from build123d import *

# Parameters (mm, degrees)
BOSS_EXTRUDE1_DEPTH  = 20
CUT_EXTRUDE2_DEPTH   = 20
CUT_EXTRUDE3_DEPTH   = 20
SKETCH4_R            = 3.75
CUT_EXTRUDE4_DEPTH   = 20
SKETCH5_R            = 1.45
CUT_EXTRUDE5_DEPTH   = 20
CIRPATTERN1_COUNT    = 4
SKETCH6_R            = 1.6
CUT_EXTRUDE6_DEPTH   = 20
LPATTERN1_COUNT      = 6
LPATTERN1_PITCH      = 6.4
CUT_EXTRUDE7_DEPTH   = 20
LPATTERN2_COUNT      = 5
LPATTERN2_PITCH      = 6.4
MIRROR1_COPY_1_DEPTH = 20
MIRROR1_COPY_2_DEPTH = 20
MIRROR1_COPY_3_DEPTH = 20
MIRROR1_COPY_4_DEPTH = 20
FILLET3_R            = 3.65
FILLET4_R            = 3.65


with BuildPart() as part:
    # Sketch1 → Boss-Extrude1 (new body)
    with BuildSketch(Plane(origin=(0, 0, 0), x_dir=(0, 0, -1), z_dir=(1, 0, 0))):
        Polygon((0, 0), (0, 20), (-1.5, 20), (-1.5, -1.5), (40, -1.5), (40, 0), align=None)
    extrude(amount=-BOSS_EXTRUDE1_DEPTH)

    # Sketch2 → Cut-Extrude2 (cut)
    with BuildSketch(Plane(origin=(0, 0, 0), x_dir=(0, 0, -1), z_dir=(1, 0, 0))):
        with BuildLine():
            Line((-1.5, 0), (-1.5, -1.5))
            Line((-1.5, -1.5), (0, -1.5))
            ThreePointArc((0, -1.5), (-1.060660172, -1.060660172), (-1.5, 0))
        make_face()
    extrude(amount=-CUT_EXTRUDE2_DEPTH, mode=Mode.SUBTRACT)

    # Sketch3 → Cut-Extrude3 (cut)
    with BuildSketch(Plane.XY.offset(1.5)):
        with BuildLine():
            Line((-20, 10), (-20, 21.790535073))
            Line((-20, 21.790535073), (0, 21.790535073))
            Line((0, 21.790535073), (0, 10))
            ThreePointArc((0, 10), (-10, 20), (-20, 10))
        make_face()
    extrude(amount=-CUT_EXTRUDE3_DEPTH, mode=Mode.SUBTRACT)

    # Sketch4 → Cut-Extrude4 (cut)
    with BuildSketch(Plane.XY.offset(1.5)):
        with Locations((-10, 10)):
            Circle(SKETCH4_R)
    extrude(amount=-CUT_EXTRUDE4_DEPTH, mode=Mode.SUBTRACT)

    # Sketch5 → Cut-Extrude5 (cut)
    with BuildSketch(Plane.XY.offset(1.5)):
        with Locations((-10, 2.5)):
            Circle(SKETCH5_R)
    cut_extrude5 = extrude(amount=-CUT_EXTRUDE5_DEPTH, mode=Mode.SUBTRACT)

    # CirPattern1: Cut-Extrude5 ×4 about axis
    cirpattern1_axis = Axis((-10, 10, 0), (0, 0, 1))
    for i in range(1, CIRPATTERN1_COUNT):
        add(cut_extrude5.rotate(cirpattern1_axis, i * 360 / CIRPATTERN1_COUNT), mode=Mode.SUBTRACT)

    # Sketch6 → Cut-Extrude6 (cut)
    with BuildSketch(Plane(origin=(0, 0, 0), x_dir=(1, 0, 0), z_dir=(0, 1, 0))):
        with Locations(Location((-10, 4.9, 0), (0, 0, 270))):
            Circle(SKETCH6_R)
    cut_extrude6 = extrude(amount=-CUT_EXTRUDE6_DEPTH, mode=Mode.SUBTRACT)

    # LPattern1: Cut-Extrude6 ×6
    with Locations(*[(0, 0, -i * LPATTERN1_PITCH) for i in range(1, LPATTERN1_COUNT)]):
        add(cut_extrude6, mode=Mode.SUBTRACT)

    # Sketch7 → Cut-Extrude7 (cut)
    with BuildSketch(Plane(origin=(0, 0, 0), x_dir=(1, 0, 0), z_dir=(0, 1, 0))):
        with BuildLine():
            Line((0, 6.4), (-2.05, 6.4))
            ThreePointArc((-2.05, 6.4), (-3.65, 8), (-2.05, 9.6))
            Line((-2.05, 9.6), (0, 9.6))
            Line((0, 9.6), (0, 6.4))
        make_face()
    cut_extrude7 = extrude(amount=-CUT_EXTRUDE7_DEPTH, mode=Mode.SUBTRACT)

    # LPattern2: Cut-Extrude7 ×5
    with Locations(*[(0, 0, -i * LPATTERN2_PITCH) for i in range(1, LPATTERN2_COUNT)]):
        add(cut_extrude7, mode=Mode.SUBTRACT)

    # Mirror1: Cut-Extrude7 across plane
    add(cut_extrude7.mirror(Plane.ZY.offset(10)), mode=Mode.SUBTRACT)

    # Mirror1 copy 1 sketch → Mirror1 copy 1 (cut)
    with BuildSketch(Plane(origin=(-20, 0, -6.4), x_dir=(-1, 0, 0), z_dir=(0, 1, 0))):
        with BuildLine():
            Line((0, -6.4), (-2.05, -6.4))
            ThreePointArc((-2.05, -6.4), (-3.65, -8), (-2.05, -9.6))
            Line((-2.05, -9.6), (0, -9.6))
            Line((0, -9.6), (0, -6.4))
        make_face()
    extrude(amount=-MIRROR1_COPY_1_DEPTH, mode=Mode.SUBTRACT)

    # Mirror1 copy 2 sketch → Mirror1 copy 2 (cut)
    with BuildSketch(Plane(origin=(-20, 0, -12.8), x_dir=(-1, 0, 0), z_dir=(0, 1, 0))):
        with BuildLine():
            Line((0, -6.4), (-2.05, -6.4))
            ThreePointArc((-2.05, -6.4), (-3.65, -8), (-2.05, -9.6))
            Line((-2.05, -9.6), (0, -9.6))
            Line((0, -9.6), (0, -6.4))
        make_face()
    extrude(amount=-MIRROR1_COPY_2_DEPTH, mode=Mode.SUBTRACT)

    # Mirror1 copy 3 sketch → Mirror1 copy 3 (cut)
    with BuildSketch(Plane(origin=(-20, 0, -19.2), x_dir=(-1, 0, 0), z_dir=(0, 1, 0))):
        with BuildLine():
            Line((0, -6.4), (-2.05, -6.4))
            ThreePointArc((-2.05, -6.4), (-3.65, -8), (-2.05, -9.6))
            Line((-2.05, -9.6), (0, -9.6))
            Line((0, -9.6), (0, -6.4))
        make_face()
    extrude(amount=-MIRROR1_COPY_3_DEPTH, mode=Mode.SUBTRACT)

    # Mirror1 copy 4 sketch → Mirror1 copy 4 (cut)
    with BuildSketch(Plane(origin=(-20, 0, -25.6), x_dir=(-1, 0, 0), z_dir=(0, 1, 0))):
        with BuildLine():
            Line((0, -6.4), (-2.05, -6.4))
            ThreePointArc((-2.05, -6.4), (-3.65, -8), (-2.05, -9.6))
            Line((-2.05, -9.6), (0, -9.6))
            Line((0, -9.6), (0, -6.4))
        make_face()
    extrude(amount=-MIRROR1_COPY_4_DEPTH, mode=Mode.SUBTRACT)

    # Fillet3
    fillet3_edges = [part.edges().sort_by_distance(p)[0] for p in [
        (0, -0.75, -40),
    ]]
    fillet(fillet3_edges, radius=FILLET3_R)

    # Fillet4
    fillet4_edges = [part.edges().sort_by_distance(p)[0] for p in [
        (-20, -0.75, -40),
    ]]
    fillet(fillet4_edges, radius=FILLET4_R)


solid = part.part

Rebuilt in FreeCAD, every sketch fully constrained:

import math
import FreeCAD as App
import Part
import Sketcher
from FreeCAD import Vector


def edges_at(feature, points):
    """Names of the edges that pass closest to the given points."""
    edges = feature.Shape.Edges
    near = lambda p: min(range(len(edges)), key=lambda i: edges[i].distToShape(Part.Vertex(*p))[0])
    return sorted({f"Edge{near(p) + 1}" for p in points})


def add_polygon(sketch, points):
    """Adds a closed chain of lines whose ends are joined by coincident constraints."""
    first, n = sketch.GeometryCount, len(points)
    for a, b in zip(points, points[1:] + points[:1]):
        sketch.addGeometry(Part.LineSegment(App.Vector(*a, 0), App.Vector(*b, 0)), False)
    for i in range(n):
        sketch.addConstraint(Sketcher.Constraint("Coincident", first + i, 2, first + (i + 1) % n, 1))

doc = App.newDocument("Part")
body = doc.addObject("PartDesign::Body", "Body")

sketch1 = body.newObject("Sketcher::SketchObject", "Sketch")
sketch1.AttachmentSupport = (doc.getObject("YZ_Plane"), [""])
sketch1.MapMode = "FlatFace"
add_polygon(sketch1, [(0, 0), (20, 0), (20, 1.5), (-1.5, 1.5), (-1.5, -40), (0, -40)])
sketch1.addConstraint([
    Sketcher.Constraint("Horizontal", 0),
    Sketcher.Constraint("Vertical", 1),
    Sketcher.Constraint("Horizontal", 2),
    Sketcher.Constraint("Vertical", 3),
    Sketcher.Constraint("Horizontal", 4),
    Sketcher.Constraint("Vertical", 5),
    Sketcher.Constraint("Coincident", 5, 2, -1, 1),
    Sketcher.Constraint("Equal", 4, 1),
    Sketcher.Constraint("DistanceX", 0, 1, 0, 2, 20.0),
    Sketcher.Constraint("DistanceY", 5, 1, 5, 2, 40.0),
    Sketcher.Constraint("DistanceX", 2, 2, 2, 1, 21.5),
])
pad1 = body.newObject("PartDesign::Pad", "Pad")
pad1.Profile = sketch1
pad1.Length = 20
pad1.Reversed = True

sketch2 = body.newObject("Sketcher::SketchObject", "Sketch001")
sketch2.AttachmentSupport = (doc.getObject("YZ_Plane"), [""])
sketch2.MapMode = "FlatFace"
sketch2.addGeometry([
    Part.LineSegment(Vector(0, 1.5, 0), Vector(-1.5, 1.5, 0)),
    Part.LineSegment(Vector(-1.5, 1.5, 0), Vector(-1.5, 0, 0)),
    Part.ArcOfCircle(Part.Circle(Vector(0, 0, 0), Vector(0, 0, 1), 1.5), math.radians(90), math.radians(180)),
], False)
sketch2.addConstraint([
    Sketcher.Constraint("Coincident", 0, 2, 1, 1),
    Sketcher.Constraint("Tangent", 1, 2, 2, 2),
    Sketcher.Constraint("Tangent", 2, 1, 0, 1),
    Sketcher.Constraint("Horizontal", 0),
    Sketcher.Constraint("Vertical", 1),
    Sketcher.Constraint("Coincident", 2, 3, -1, 1),
    Sketcher.Constraint("Radius", 2, 1.5),
])
pocket1 = body.newObject("PartDesign::Pocket", "Pocket")
pocket1.Profile = sketch2
pocket1.Length = 20

sketch3 = body.newObject("Sketcher::SketchObject", "Sketch002")
sketch3.AttachmentSupport = (doc.getObject("XY_Plane"), [""])
sketch3.MapMode = "FlatFace"
sketch3.AttachmentOffset = App.Placement(Vector(0, 0, 1.5), App.Rotation())
sketch3.addGeometry([
    Part.LineSegment(Vector(-20, 22, 0), Vector(-20, 10, 0)),
    Part.ArcOfCircle(Part.Circle(Vector(-10, 10, 0), Vector(0, 0, 1), 10), math.radians(0), math.radians(180)),
    Part.LineSegment(Vector(0, 10, 0), Vector(0, 22, 0)),
    Part.LineSegment(Vector(0, 22, 0), Vector(-20, 22, 0)),
], False)
sketch3.addConstraint([
    Sketcher.Constraint("Tangent", 0, 2, 1, 2),
    Sketcher.Constraint("Tangent", 1, 1, 2, 1),
    Sketcher.Constraint("Coincident", 2, 2, 3, 1),
    Sketcher.Constraint("Coincident", 3, 2, 0, 1),
    Sketcher.Constraint("Vertical", 0),
    Sketcher.Constraint("Vertical", 2),
    Sketcher.Constraint("Horizontal", 3),
    Sketcher.Constraint("PointOnObject", 1, 1, -2),
    Sketcher.Constraint("Radius", 1, 10.0),
    Sketcher.Constraint("DistanceY", -1, 1, 1, 3, 10.0),
    Sketcher.Constraint("DistanceY", 0, 2, 0, 1, 11.790535),
])
pocket2 = body.newObject("PartDesign::Pocket", "Pocket001")
pocket2.Profile = sketch3
pocket2.Length = 20

sketch4 = body.newObject("Sketcher::SketchObject", "Sketch003")
sketch4.AttachmentSupport = (doc.getObject("XY_Plane"), [""])
sketch4.MapMode = "FlatFace"
sketch4.AttachmentOffset = App.Placement(Vector(0, 0, 1.5), App.Rotation())
sketch4.addGeometry(Part.Circle(Vector(-10, 10, 0), Vector(0, 0, 1), 3.8), False)
sketch4.addConstraint([
    Sketcher.Constraint("Diameter", 0, 7.5),
    Sketcher.Constraint("DistanceX", 0, 3, -1, 1, 10.0),
    Sketcher.Constraint("DistanceY", -1, 1, 0, 3, 10.0),
])
pocket3 = body.newObject("PartDesign::Pocket", "Pocket002")
pocket3.Profile = sketch4
pocket3.Length = 20

sketch5 = body.newObject("Sketcher::SketchObject", "Sketch004")
sketch5.AttachmentSupport = (doc.getObject("XY_Plane"), [""])
sketch5.MapMode = "FlatFace"
sketch5.AttachmentOffset = App.Placement(Vector(0, 0, 1.5), App.Rotation())
sketch5.addGeometry(Part.Circle(Vector(-10, 2.5, 0), Vector(0, 0, 1), 1.4), False)
sketch5.addConstraint([
    Sketcher.Constraint("Diameter", 0, 2.9),
    Sketcher.Constraint("DistanceX", 0, 3, -1, 1, 10.0),
    Sketcher.Constraint("DistanceY", -1, 1, 0, 3, 2.5),
])
pocket4 = body.newObject("PartDesign::Pocket", "Pocket003")
pocket4.Profile = sketch5
pocket4.Length = 20
doc.recompute()

datumline = body.newObject("PartDesign::Line", "DatumLine")
datumline.Placement = App.Placement(Vector(-10, 10, 0), App.Rotation(Vector(0, 0, 1), Vector(0, 0, 1)))
polarpattern = body.newObject("PartDesign::PolarPattern", "PolarPattern")
polarpattern.Originals = [pocket4]
polarpattern.Axis = (datumline, [""])
polarpattern.Angle = 360
polarpattern.Occurrences = 4
body.Tip = polarpattern

sketch6 = body.newObject("Sketcher::SketchObject", "Sketch005")
sketch6.AttachmentSupport = (doc.getObject("XZ_Plane"), [""])
sketch6.MapMode = "FlatFace"
sketch6.addGeometry(Part.Circle(Vector(-10, -4.9, 0), Vector(0, 0, 1), 1.6), False)
sketch6.addConstraint([
    Sketcher.Constraint("Diameter", 0, 3.2),
    Sketcher.Constraint("DistanceX", 0, 3, -1, 1, 10.0),
    Sketcher.Constraint("DistanceY", 0, 3, -1, 1, 4.9),
])
pocket5 = body.newObject("PartDesign::Pocket", "Pocket004")
pocket5.Profile = sketch6
pocket5.Length = 20
pocket5.Reversed = True
doc.recompute()

linearpattern = body.newObject("PartDesign::LinearPattern", "LinearPattern")
linearpattern.Originals = [pocket5]
linearpattern.Direction = (doc.getObject("Z_Axis"), [""])
linearpattern.Mode = "offset"
linearpattern.Offset = 6.4
linearpattern.Occurrences = 6
linearpattern.Reversed = True
body.Tip = linearpattern

sketch7 = body.newObject("Sketcher::SketchObject", "Sketch006")
sketch7.AttachmentSupport = (doc.getObject("XZ_Plane"), [""])
sketch7.MapMode = "FlatFace"
sketch7.addGeometry([
    Part.LineSegment(Vector(-2, -6.4, 0), Vector(0, -6.4, 0)),
    Part.LineSegment(Vector(0, -6.4, 0), Vector(0, -9.6, 0)),
    Part.LineSegment(Vector(0, -9.6, 0), Vector(-2, -9.6, 0)),
    Part.ArcOfCircle(Part.Circle(Vector(-2, -8, 0), Vector(0, 0, 1), 1.6), math.radians(90), math.radians(270)),
], False)
sketch7.addConstraint([
    Sketcher.Constraint("Coincident", 0, 2, 1, 1),
    Sketcher.Constraint("Coincident", 1, 2, 2, 1),
    Sketcher.Constraint("Tangent", 2, 2, 3, 2),
    Sketcher.Constraint("Tangent", 3, 1, 0, 1),
    Sketcher.Constraint("Horizontal", 0),
    Sketcher.Constraint("Vertical", 1),
    Sketcher.Constraint("Horizontal", 2),
    Sketcher.Constraint("PointOnObject", 0, 2, -2),
    Sketcher.Constraint("Radius", 3, 1.6),
    Sketcher.Constraint("DistanceY", 3, 3, -1, 1, 8.0),
    Sketcher.Constraint("DistanceX", 0, 1, 0, 2, 2.05),
])
pocket6 = body.newObject("PartDesign::Pocket", "Pocket005")
pocket6.Profile = sketch7
pocket6.Length = 20
pocket6.Reversed = True
doc.recompute()

linearpattern2 = body.newObject("PartDesign::LinearPattern", "LinearPattern001")
linearpattern2.Originals = [pocket6]
linearpattern2.Direction = (doc.getObject("Z_Axis"), [""])
linearpattern2.Mode = "offset"
linearpattern2.Offset = 6.4
linearpattern2.Occurrences = 5
linearpattern2.Reversed = True
body.Tip = linearpattern2
doc.recompute()

datumplane = body.newObject("PartDesign::Plane", "DatumPlane")
datumplane.AttachmentSupport = (doc.getObject("YZ_Plane"), [""])
datumplane.MapMode = "FlatFace"
datumplane.AttachmentOffset = App.Placement(Vector(0, 0, -10), App.Rotation())
mirrored = body.newObject("PartDesign::Mirrored", "Mirrored")
mirrored.Originals = [pocket6]
mirrored.MirrorPlane = (datumplane, [""])
body.Tip = mirrored

sketch8 = body.newObject("Sketcher::SketchObject", "Sketch007")
sketch8.AttachmentSupport = (doc.getObject("XZ_Plane"), [""])
sketch8.MapMode = "FlatFace"
sketch8.addGeometry([
    Part.LineSegment(Vector(-20, -12.8, 0), Vector(-17.9, -12.8, 0)),
    Part.ArcOfCircle(Part.Circle(Vector(-17.9, -14.4, 0), Vector(0, 0, 1), 1.6), math.radians(-90), math.radians(90)),
    Part.LineSegment(Vector(-17.9, -16, 0), Vector(-20, -16, 0)),
    Part.LineSegment(Vector(-20, -16, 0), Vector(-20, -12.8, 0)),
], False)
sketch8.addConstraint([
    Sketcher.Constraint("Tangent", 0, 2, 1, 2),
    Sketcher.Constraint("Tangent", 1, 1, 2, 1),
    Sketcher.Constraint("Coincident", 2, 2, 3, 1),
    Sketcher.Constraint("Coincident", 3, 2, 0, 1),
    Sketcher.Constraint("Horizontal", 0),
    Sketcher.Constraint("Horizontal", 2),
    Sketcher.Constraint("Vertical", 3),
    Sketcher.Constraint("Radius", 1, 1.6),
    Sketcher.Constraint("DistanceY", 1, 1, -1, 1, 16.0),
    Sketcher.Constraint("DistanceX", 2, 2, -1, 1, 20.0),
    Sketcher.Constraint("DistanceX", 0, 1, 0, 2, 2.05),
])
pocket7 = body.newObject("PartDesign::Pocket", "Pocket006")
pocket7.Profile = sketch8
pocket7.Length = 20
pocket7.Reversed = True

sketch9 = body.newObject("Sketcher::SketchObject", "Sketch008")
sketch9.AttachmentSupport = (doc.getObject("XZ_Plane"), [""])
sketch9.MapMode = "FlatFace"
sketch9.addGeometry([
    Part.LineSegment(Vector(-20, -19.2, 0), Vector(-17.9, -19.2, 0)),
    Part.ArcOfCircle(Part.Circle(Vector(-17.9, -20.8, 0), Vector(0, 0, 1), 1.6), math.radians(-90), math.radians(90)),
    Part.LineSegment(Vector(-17.9, -22.4, 0), Vector(-20, -22.4, 0)),
    Part.LineSegment(Vector(-20, -22.4, 0), Vector(-20, -19.2, 0)),
], False)
sketch9.addConstraint([
    Sketcher.Constraint("Tangent", 0, 2, 1, 2),
    Sketcher.Constraint("Tangent", 1, 1, 2, 1),
    Sketcher.Constraint("Coincident", 2, 2, 3, 1),
    Sketcher.Constraint("Coincident", 3, 2, 0, 1),
    Sketcher.Constraint("Horizontal", 0),
    Sketcher.Constraint("Horizontal", 2),
    Sketcher.Constraint("Vertical", 3),
    Sketcher.Constraint("Radius", 1, 1.6),
    Sketcher.Constraint("DistanceX", 2, 2, -1, 1, 20.0),
    Sketcher.Constraint("DistanceX", 0, 1, 0, 2, 2.05),
    Sketcher.Constraint("DistanceY", 1, 3, -1, 1, 20.8),
])
pocket8 = body.newObject("PartDesign::Pocket", "Pocket007")
pocket8.Profile = sketch9
pocket8.Length = 20
pocket8.Reversed = True

sketch10 = body.newObject("Sketcher::SketchObject", "Sketch009")
sketch10.AttachmentSupport = (doc.getObject("XZ_Plane"), [""])
sketch10.MapMode = "FlatFace"
sketch10.addGeometry([
    Part.LineSegment(Vector(-20, -25.6, 0), Vector(-17.9, -25.6, 0)),
    Part.ArcOfCircle(Part.Circle(Vector(-17.9, -27.2, 0), Vector(0, 0, 1), 1.6), math.radians(-90), math.radians(90)),
    Part.LineSegment(Vector(-17.9, -28.8, 0), Vector(-20, -28.8, 0)),
    Part.LineSegment(Vector(-20, -28.8, 0), Vector(-20, -25.6, 0)),
], False)
sketch10.addConstraint([
    Sketcher.Constraint("Tangent", 0, 2, 1, 2),
    Sketcher.Constraint("Tangent", 1, 1, 2, 1),
    Sketcher.Constraint("Coincident", 2, 2, 3, 1),
    Sketcher.Constraint("Coincident", 3, 2, 0, 1),
    Sketcher.Constraint("Horizontal", 0),
    Sketcher.Constraint("Horizontal", 2),
    Sketcher.Constraint("Vertical", 3),
    Sketcher.Constraint("Radius", 1, 1.6),
    Sketcher.Constraint("DistanceX", 2, 2, -1, 1, 20.0),
    Sketcher.Constraint("DistanceX", 0, 1, 0, 2, 2.05),
    Sketcher.Constraint("DistanceY", 1, 3, -1, 1, 27.2),
])
pocket9 = body.newObject("PartDesign::Pocket", "Pocket008")
pocket9.Profile = sketch10
pocket9.Length = 20
pocket9.Reversed = True

sketch11 = body.newObject("Sketcher::SketchObject", "Sketch010")
sketch11.AttachmentSupport = (doc.getObject("XZ_Plane"), [""])
sketch11.MapMode = "FlatFace"
sketch11.addGeometry([
    Part.LineSegment(Vector(-20, -32, 0), Vector(-17.9, -32, 0)),
    Part.ArcOfCircle(Part.Circle(Vector(-17.9, -33.6, 0), Vector(0, 0, 1), 1.6), math.radians(-90), math.radians(90)),
    Part.LineSegment(Vector(-17.9, -35.2, 0), Vector(-20, -35.2, 0)),
    Part.LineSegment(Vector(-20, -35.2, 0), Vector(-20, -32, 0)),
], False)
sketch11.addConstraint([
    Sketcher.Constraint("Tangent", 0, 2, 1, 2),
    Sketcher.Constraint("Tangent", 1, 1, 2, 1),
    Sketcher.Constraint("Coincident", 2, 2, 3, 1),
    Sketcher.Constraint("Coincident", 3, 2, 0, 1),
    Sketcher.Constraint("Horizontal", 0),
    Sketcher.Constraint("Horizontal", 2),
    Sketcher.Constraint("Vertical", 3),
    Sketcher.Constraint("Radius", 1, 1.6),
    Sketcher.Constraint("DistanceY", 0, 2, -1, 1, 32.0),
    Sketcher.Constraint("DistanceX", 2, 2, -1, 1, 20.0),
    Sketcher.Constraint("DistanceX", 0, 1, 0, 2, 2.05),
])
pocket10 = body.newObject("PartDesign::Pocket", "Pocket009")
pocket10.Profile = sketch11
pocket10.Length = 20
pocket10.Reversed = True
doc.recompute()

fillet = body.newObject("PartDesign::Fillet", "Fillet")
fillet.Base = (pocket10, edges_at(pocket10, [(0, -0.75, -40)]))
fillet.Radius = 3.65
doc.recompute()

fillet2 = body.newObject("PartDesign::Fillet", "Fillet001")
fillet2.Base = (fillet, edges_at(fillet, [(-20, -0.75, -40)]))
fillet2.Radius = 3.65

doc.recompute()
